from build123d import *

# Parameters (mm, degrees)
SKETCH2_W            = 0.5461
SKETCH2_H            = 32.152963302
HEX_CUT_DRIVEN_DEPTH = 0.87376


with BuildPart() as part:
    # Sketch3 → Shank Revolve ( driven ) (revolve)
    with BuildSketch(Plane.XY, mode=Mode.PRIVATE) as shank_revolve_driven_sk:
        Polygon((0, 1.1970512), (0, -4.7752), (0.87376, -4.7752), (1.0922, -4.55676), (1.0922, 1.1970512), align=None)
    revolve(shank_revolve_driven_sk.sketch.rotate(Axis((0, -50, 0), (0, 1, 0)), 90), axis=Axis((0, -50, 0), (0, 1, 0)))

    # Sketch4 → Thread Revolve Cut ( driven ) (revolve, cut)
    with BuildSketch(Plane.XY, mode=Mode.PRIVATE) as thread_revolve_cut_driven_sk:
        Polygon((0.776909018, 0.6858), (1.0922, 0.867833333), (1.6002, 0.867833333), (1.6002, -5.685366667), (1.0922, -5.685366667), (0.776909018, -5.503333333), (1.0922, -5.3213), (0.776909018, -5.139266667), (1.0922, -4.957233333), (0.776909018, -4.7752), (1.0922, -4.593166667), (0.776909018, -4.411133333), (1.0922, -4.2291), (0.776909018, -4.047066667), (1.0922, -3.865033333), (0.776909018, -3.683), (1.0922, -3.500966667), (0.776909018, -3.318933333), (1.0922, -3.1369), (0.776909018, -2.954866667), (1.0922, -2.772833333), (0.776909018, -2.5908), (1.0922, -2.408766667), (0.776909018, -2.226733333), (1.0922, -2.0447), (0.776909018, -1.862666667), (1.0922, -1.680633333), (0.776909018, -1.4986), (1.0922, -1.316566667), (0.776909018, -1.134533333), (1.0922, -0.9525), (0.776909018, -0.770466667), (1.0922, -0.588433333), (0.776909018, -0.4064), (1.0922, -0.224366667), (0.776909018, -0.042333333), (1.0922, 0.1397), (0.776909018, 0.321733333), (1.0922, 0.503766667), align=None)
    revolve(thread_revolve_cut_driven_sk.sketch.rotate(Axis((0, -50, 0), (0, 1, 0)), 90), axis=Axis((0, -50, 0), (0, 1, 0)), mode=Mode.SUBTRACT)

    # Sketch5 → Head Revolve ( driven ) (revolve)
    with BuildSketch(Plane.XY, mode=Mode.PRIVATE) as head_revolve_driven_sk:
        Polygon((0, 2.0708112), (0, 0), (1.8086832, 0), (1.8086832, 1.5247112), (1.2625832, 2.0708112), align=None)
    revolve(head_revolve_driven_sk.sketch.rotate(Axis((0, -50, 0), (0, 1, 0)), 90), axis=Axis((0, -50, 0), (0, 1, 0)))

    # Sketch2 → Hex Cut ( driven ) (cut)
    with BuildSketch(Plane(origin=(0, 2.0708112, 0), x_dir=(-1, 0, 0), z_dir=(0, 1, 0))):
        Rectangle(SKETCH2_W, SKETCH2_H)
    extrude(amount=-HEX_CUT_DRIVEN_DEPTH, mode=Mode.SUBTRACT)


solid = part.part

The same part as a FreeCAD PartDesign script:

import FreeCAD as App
import Part
import Sketcher
from FreeCAD import Vector
Q = App.Units.Quantity


def add_polygon(sketch, points):
    """Adds a closed chain of lines whose ends are joined by coincident constraints."""
    first, n = sketch.GeometryCount, len(points)
    for a, b in zip(points, points[1:] + points[:1]):
        sketch.addGeometry(Part.LineSegment(App.Vector(*a, 0), App.Vector(*b, 0)), False)
    for i in range(n):
        sketch.addConstraint(Sketcher.Constraint("Coincident", first + i, 2, first + (i + 1) % n, 1))

doc = App.newDocument("Part")
body = doc.addObject("PartDesign::Body", "Body")

# Sketch on XY plane
sketch1 = doc.addObject("Sketcher::SketchObject", "Sketch")
body.addObject(sketch1)
sketch1.AttachmentSupport = (doc.XY_Plane, [""])
sketch1.MapMode = "FlatFace"
add_polygon(sketch1, [(0, 1.2), (0, -4.78), (0.87, -4.78), (1.09, -4.56), (1.09, 1.2)])  # lines 0-4
sketch1.addConstraint(Sketcher.Constraint("Vertical", 0))
sketch1.addConstraint(Sketcher.Constraint("Horizontal", 1))
sketch1.addConstraint(Sketcher.Constraint("Vertical", 3))
sketch1.addConstraint(Sketcher.Constraint("Horizontal", 4))
sketch1.addConstraint(Sketcher.Constraint("PointOnObject", 0, 2, -2))
sketch1.addConstraint(Sketcher.Constraint("Angle", 2, Q("45 deg")))
sketch1.addConstraint(Sketcher.Constraint("DistanceX", 4, 2, 4, 1, Q("0.043 in")))
sketch1.addConstraint(Sketcher.Constraint("DistanceX", 1, 1, 1, 2, Q("0.0344 in")))
sketch1.addConstraint(Sketcher.Constraint("DistanceY", 0, 2, -1, 1, Q("0.188 in")))
sketch1.addConstraint(Sketcher.Constraint("DistanceY", 0, 2, 0, 1, 5.972251))
revolution = doc.addObject("PartDesign::Revolution", "Revolution")
body.addObject(revolution)
revolution.Profile = sketch1
revolution.ReferenceAxis = (sketch1, ["V_Axis"])
revolution.Angle = 360

# Sketch on XY plane
sketch2 = doc.addObject("Sketcher::SketchObject", "Sketch001")
body.addObject(sketch2)
sketch2.AttachmentSupport = (doc.XY_Plane, [""])
sketch2.MapMode = "FlatFace"
add_polygon(sketch2, [(1.09, 0.87), (0.78, 0.69), (1.09, 0.5), (0.78, 0.32), (1.09, 0.14), (0.78, -0.04), (1.09, -0.22), (0.78, -0.41), (1.09, -0.59), (0.78, -0.77), (1.09, -0.95), (0.78, -1.13), (1.09, -1.32), (0.78, -1.5), (1.09, -1.68), (0.78, -1.86), (1.09, -2.04), (0.78, -2.23), (1.09, -2.41), (0.78, -2.59), (1.09, -2.77), (0.78, -2.95), (1.09, -3.14), (0.78, -3.32), (1.09, -3.5), (0.78, -3.68), (1.09, -3.87), (0.78, -4.05), (1.09, -4.23), (0.78, -4.41), (1.09, -4.59), (0.78, -4.78), (1.09, -4.96), (0.78, -5.14), (1.09, -5.32), (0.78, -5.5), (1.09, -5.69), (1.6, -5.69), (1.6, 0.87)])  # lines 0-38
sketch2.addConstraint(Sketcher.Constraint("Horizontal", 36))
sketch2.addConstraint(Sketcher.Constraint("Vertical", 37))
sketch2.addConstraint(Sketcher.Constraint("Horizontal", 38))
sketch2.addConstraint(Sketcher.Constraint("Parallel", 0, 2))
sketch2.addConstraint(Sketcher.Constraint("Parallel", 1, 3))
sketch2.addConstraint(Sketcher.Constraint("Parallel", 2, 4))
sketch2.addConstraint(Sketcher.Constraint("Parallel", 3, 5))
sketch2.addConstraint(Sketcher.Constraint("Parallel", 4, 6))
sketch2.addConstraint(Sketcher.Constraint("Parallel", 5, 7))
sketch2.addConstraint(Sketcher.Constraint("Parallel", 6, 8))
sketch2.addConstraint(Sketcher.Constraint("Parallel", 7, 9))
sketch2.addConstraint(Sketcher.Constraint("Parallel", 8, 10))
sketch2.addConstraint(Sketcher.Constraint("Parallel", 9, 11))
sketch2.addConstraint(Sketcher.Constraint("Parallel", 10, 12))
sketch2.addConstraint(Sketcher.Constraint("Parallel", 11, 13))
sketch2.addConstraint(Sketcher.Constraint("Parallel", 12, 14))
sketch2.addConstraint(Sketcher.Constraint("Parallel", 13, 15))
sketch2.addConstraint(Sketcher.Constraint("Parallel", 14, 16))
sketch2.addConstraint(Sketcher.Constraint("Parallel", 15, 17))
sketch2.addConstraint(Sketcher.Constraint("Parallel", 16, 18))
sketch2.addConstraint(Sketcher.Constraint("Parallel", 17, 19))
sketch2.addConstraint(Sketcher.Constraint("Parallel", 18, 20))
sketch2.addConstraint(Sketcher.Constraint("Parallel", 19, 21))
sketch2.addConstraint(Sketcher.Constraint("Parallel", 20, 22))
sketch2.addConstraint(Sketcher.Constraint("Parallel", 21, 23))
sketch2.addConstraint(Sketcher.Constraint("Parallel", 22, 24))
sketch2.addConstraint(Sketcher.Constraint("Parallel", 23, 25))
sketch2.addConstraint(Sketcher.Constraint("Parallel", 24, 26))
sketch2.addConstraint(Sketcher.Constraint("Parallel", 25, 27))
sketch2.addConstraint(Sketcher.Constraint("Parallel", 26, 28))
sketch2.addConstraint(Sketcher.Constraint("Parallel", 27, 29))
sketch2.addConstraint(Sketcher.Constraint("Parallel", 28, 30))
sketch2.addConstraint(Sketcher.Constraint("Parallel", 29, 31))
sketch2.addConstraint(Sketcher.Constraint("Parallel", 30, 32))
sketch2.addConstraint(Sketcher.Constraint("Parallel", 31, 33))
sketch2.addConstraint(Sketcher.Constraint("Parallel", 32, 34))
sketch2.addConstraint(Sketcher.Constraint("Parallel", 33, 35))
sketch2.addConstraint(Sketcher.Constraint("Vertical", 0, 2, 2, 2))
sketch2.addConstraint(Sketcher.Constraint("Vertical", 1, 2, 3, 2))
sketch2.addConstraint(Sketcher.Constraint("Vertical", 2, 2, 4, 2))
sketch2.addConstraint(Sketcher.Constraint("Vertical", 3, 2, 5, 2))
sketch2.addConstraint(Sketcher.Constraint("Vertical", 4, 2, 6, 2))
sketch2.addConstraint(Sketcher.Constraint("Vertical", 5, 2, 7, 2))
sketch2.addConstraint(Sketcher.Constraint("Vertical", 6, 2, 8, 2))
sketch2.addConstraint(Sketcher.Constraint("Vertical", 7, 2, 9, 2))
sketch2.addConstraint(Sketcher.Constraint("Vertical", 8, 2, 10, 2))
sketch2.addConstraint(Sketcher.Constraint("Vertical", 9, 2, 11, 2))
sketch2.addConstraint(Sketcher.Constraint("Vertical", 10, 2, 12, 2))
sketch2.addConstraint(Sketcher.Constraint("Vertical", 11, 2, 13, 2))
sketch2.addConstraint(Sketcher.Constraint("Vertical", 12, 2, 14, 2))
sketch2.addConstraint(Sketcher.Constraint("Vertical", 13, 2, 15, 2))
sketch2.addConstraint(Sketcher.Constraint("Vertical", 14, 2, 16, 2))
sketch2.addConstraint(Sketcher.Constraint("Vertical", 15, 2, 17, 2))
sketch2.addConstraint(Sketcher.Constraint("Vertical", 16, 2, 18, 2))
sketch2.addConstraint(Sketcher.Constraint("Vertical", 17, 2, 19, 2))
sketch2.addConstraint(Sketcher.Constraint("Vertical", 18, 2, 20, 2))
sketch2.addConstraint(Sketcher.Constraint("Vertical", 19, 2, 21, 2))
sketch2.addConstraint(Sketcher.Constraint("Vertical", 20, 2, 22, 2))
sketch2.addConstraint(Sketcher.Constraint("Vertical", 21, 2, 23, 2))
sketch2.addConstraint(Sketcher.Constraint("Vertical", 22, 2, 24, 2))
sketch2.addConstraint(Sketcher.Constraint("Vertical", 23, 2, 25, 2))
sketch2.addConstraint(Sketcher.Constraint("Vertical", 24, 2, 26, 2))
sketch2.addConstraint(Sketcher.Constraint("Vertical", 25, 2, 27, 2))
sketch2.addConstraint(Sketcher.Constraint("Vertical", 26, 2, 28, 2))
sketch2.addConstraint(Sketcher.Constraint("Vertical", 27, 2, 29, 2))
sketch2.addConstraint(Sketcher.Constraint("Vertical", 28, 2, 30, 2))
sketch2.addConstraint(Sketcher.Constraint("Vertical", 29, 2, 31, 2))
sketch2.addConstraint(Sketcher.Constraint("Vertical", 30, 2, 32, 2))
sketch2.addConstraint(Sketcher.Constraint("Vertical", 31, 2, 33, 2))
sketch2.addConstraint(Sketcher.Constraint("Vertical", 32, 2, 34, 2))
sketch2.addConstraint(Sketcher.Constraint("Vertical", 33, 2, 35, 2))
sketch2.addConstraint(Sketcher.Constraint("Vertical", 35, 2, 38, 2))
sketch2.addConstraint(Sketcher.Constraint("Equal", 0, 1))
sketch2.addConstraint(Sketcher.Constraint("Angle", 0, Q("-150 deg")))
sketch2.addConstraint(Sketcher.Constraint("DistanceX", 36, 1, 36, 2, Q("0.02 in")))
sketch2.addConstraint(Sketcher.Constraint("DistanceY", 37, 1, 37, 2, Q("0.258 in")))
sketch2.addConstraint(Sketcher.Constraint("DistanceY", -1, 1, 0, 2, Q("0.027 in")))
sketch2.addConstraint(Sketcher.Constraint("DistanceX", -1, 1, 1, 2, Q("0.043 in")))
groove = doc.addObject("PartDesign::Groove", "Groove")
body.addObject(groove)
groove.Profile = sketch2
groove.ReferenceAxis = (sketch2, ["V_Axis"])
groove.Angle = 360

# Sketch on XY plane
sketch3 = doc.addObject("Sketcher::SketchObject", "Sketch002")
body.addObject(sketch3)
sketch3.AttachmentSupport = (doc.XY_Plane, [""])
sketch3.MapMode = "FlatFace"
add_polygon(sketch3, [(0, 2.1), (0, 0), (1.8, 0), (1.8, 1.5), (1.3, 2.1)])  # lines 0-4
sketch3.addConstraint(Sketcher.Constraint("Vertical", 0))
sketch3.addConstraint(Sketcher.Constraint("Horizontal", 1))
sketch3.addConstraint(Sketcher.Constraint("Vertical", 2))
sketch3.addConstraint(Sketcher.Constraint("Horizontal", 4))
sketch3.addConstraint(Sketcher.Constraint("Coincident", 0, 2, -1, 1))
sketch3.addConstraint(Sketcher.Constraint("Angle", 3, Q("135 deg")))
sketch3.addConstraint(Sketcher.Constraint("DistanceX", 3, 2, 2, 2, Q("0.0215 in")))
sketch3.addConstraint(Sketcher.Constraint("DistanceY", 0, 2, 0, 1, 2.070811))
sketch3.addConstraint(Sketcher.Constraint("DistanceX", 1, 1, 1, 2, 1.808683))
revolution2 = doc.addObject("PartDesign::Revolution", "Revolution001")
body.addObject(revolution2)
revolution2.Profile = sketch3
revolution2.ReferenceAxis = (sketch3, ["V_Axis"])
revolution2.Angle = 360

# Sketch on XZ plane
sketch4 = doc.addObject("Sketcher::SketchObject", "Sketch003")
body.addObject(sketch4)
sketch4.AttachmentSupport = (doc.XZ_Plane, [""])
sketch4.MapMode = "FlatFace"
sketch4.AttachmentOffset = App.Placement(Vector(0, 0, -2.070811), App.Rotation())
add_polygon(sketch4, [(0.3, 16.1), (0.3, -16.1), (-0.3, -16.1), (-0.3, 16.1)])  # lines 0-3
sketch4.addConstraint(Sketcher.Constraint("Vertical", 0))
sketch4.addConstraint(Sketcher.Constraint("Horizontal", 1))
sketch4.addConstraint(Sketcher.Constraint("Vertical", 2))
sketch4.addConstraint(Sketcher.Constraint("Horizontal", 3))
sketch4.addConstraint(Sketcher.Constraint("Symmetric", 0, 2, 2, 2, -1, 1))
sketch4.addConstraint(Sketcher.Constraint("DistanceX", 1, 2, 1, 1, Q("0.0215 in")))
sketch4.addConstraint(Sketcher.Constraint("DistanceY", 0, 2, 0, 1, 32.152963))
pocket1 = doc.addObject("PartDesign::Pocket", "Pocket")
body.addObject(pocket1)
pocket1.Profile = sketch4
pocket1.Length = Q("0.0344 in")
pocket1.Reversed = True

doc.recompute()
